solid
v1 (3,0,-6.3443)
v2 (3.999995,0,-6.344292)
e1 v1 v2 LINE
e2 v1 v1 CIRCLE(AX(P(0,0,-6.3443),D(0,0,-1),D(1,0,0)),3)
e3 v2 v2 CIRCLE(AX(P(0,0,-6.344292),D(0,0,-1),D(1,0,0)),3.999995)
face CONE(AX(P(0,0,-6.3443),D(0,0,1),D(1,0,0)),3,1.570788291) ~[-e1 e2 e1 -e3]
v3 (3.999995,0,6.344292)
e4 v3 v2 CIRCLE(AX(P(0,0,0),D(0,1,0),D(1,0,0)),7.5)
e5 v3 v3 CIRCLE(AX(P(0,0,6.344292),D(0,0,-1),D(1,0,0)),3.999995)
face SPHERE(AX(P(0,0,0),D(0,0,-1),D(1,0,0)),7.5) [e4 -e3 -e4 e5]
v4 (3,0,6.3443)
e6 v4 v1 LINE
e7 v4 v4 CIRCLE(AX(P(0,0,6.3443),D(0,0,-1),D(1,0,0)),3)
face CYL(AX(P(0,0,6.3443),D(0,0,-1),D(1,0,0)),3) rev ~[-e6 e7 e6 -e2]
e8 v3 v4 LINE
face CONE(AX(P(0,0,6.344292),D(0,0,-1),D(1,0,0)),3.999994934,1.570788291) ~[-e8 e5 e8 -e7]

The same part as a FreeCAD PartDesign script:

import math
import FreeCAD as App
import Part
import Sketcher
Q = App.Units.Quantity

doc = App.newDocument("Part")
body = doc.addObject("PartDesign::Body", "Body")

sketch1 = body.newObject("Sketcher::SketchObject", "Sketch")
sketch1.AttachmentSupport = (doc.getObject("XZ_Plane"), [""])
sketch1.MapMode = "FlatFace"
sketch1.addGeometry(Part.ArcOfCircle(Part.Circle(App.Vector(0, 0, 0), App.Vector(0, 0, 1), 7.500009), math.radians(-57.769093), math.radians(57.769093)), False)
sketch1.addGeometry(Part.LineSegment(App.Vector(4, 6.3443, 0), App.Vector(3, 6.3443, 0)), False)
sketch1.addGeometry(Part.LineSegment(App.Vector(3, 6.3443, 0), App.Vector(3, -6.3443, 0)), False)
sketch1.addGeometry(Part.LineSegment(App.Vector(3, -6.3443, 0), App.Vector(4, -6.3443, 0)), False)
sketch1.addConstraint(Sketcher.Constraint("Coincident", 0, 2, 1, 1))
sketch1.addConstraint(Sketcher.Constraint("Coincident", 1, 2, 2, 1))
sketch1.addConstraint(Sketcher.Constraint("Coincident", 2, 2, 3, 1))
sketch1.addConstraint(Sketcher.Constraint("Coincident", 3, 2, 0, 1))
sketch1.addConstraint(Sketcher.Constraint("Horizontal", 1))
sketch1.addConstraint(Sketcher.Constraint("Vertical", 2))
sketch1.addConstraint(Sketcher.Constraint("Horizontal", 3))
sketch1.addConstraint(Sketcher.Constraint("Coincident", 0, 3, -1, 1))
sketch1.addConstraint(Sketcher.Constraint("Vertical", 0, 2, 3, 2))
sketch1.addConstraint(Sketcher.Constraint("DistanceX", -1, 1, 0, 2, Q("4 mm")))
sketch1.addConstraint(Sketcher.Constraint("DistanceX", -1, 1, 1, 2, Q("3 mm")))
sketch1.addConstraint(Sketcher.Constraint("Radius", 0, Q("7.5 mm")))
revolution = body.newObject("PartDesign::Revolution", "Revolution")
revolution.Profile = sketch1
revolution.ReferenceAxis = (sketch1, ["V_Axis"])
revolution.Angle = 360

doc.recompute()
